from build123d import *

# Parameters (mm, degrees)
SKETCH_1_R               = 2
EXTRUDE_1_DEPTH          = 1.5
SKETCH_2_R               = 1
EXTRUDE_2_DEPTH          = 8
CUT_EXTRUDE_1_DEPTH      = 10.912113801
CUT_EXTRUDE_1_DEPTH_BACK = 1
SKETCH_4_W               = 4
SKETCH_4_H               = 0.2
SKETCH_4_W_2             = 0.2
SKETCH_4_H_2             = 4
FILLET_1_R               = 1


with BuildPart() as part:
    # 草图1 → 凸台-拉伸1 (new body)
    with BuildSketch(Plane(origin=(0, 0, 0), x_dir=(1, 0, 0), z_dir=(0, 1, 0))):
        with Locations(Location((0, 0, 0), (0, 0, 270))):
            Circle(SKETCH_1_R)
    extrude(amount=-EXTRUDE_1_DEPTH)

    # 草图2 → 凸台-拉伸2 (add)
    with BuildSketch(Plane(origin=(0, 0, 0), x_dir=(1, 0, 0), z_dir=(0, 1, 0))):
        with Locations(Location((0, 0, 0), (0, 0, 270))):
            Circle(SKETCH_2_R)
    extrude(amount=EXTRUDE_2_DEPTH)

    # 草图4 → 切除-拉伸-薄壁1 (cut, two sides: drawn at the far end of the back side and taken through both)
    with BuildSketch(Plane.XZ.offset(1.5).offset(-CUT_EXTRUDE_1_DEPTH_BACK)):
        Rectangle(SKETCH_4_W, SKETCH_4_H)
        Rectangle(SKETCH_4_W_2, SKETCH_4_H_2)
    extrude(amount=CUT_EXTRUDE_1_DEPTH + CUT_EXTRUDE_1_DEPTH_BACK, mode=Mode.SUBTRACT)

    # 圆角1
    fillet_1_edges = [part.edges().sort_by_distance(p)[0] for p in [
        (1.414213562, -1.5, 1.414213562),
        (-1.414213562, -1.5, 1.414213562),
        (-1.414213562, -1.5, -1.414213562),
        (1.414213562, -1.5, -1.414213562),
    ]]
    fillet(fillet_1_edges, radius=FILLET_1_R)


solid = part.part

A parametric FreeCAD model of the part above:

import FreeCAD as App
import Part
import Sketcher


def edges_at(feature, points):
    """Names of the edges that pass closest to the given points."""
    edges = feature.Shape.Edges
    near = lambda p: min(range(len(edges)), key=lambda i: edges[i].distToShape(Part.Vertex(*p))[0])
    return sorted({f"Edge{near(p) + 1}" for p in points})

doc = App.newDocument("Part")
body = doc.addObject("PartDesign::Body", "Body")

sketch1 = body.newObject("Sketcher::SketchObject", "Sketch")
sketch1.AttachmentSupport = (doc.getObject("XZ_Plane"), [""])
sketch1.MapMode = "FlatFace"
sketch1.addGeometry(Part.Circle(App.Vector(0, 0, 0), App.Vector(0, 0, 1), 2), False)
sketch1.addConstraint(Sketcher.Constraint("Coincident", 0, 3, -1, 1))
sketch1.addConstraint(Sketcher.Constraint("Diameter", 0, 4.0))
pad1 = body.newObject("PartDesign::Pad", "Pad")
pad1.Profile = sketch1
pad1.Length = 1.5

sketch2 = body.newObject("Sketcher::SketchObject", "Sketch001")
sketch2.AttachmentSupport = (doc.getObject("XZ_Plane"), [""])
sketch2.MapMode = "FlatFace"
sketch2.addGeometry(Part.Circle(App.Vector(0, 0, 0), App.Vector(0, 0, 1), 1), False)
sketch2.addConstraint(Sketcher.Constraint("Coincident", 0, 3, -1, 1))
sketch2.addConstraint(Sketcher.Constraint("Diameter", 0, 2.0))
pad2 = body.newObject("PartDesign::Pad", "Pad001")
pad2.Profile = sketch2
pad2.Length = 8
pad2.Reversed = True

sketch3 = body.newObject("Sketcher::SketchObject", "Sketch002")
sketch3.AttachmentSupport = (doc.getObject("XZ_Plane"), [""])
sketch3.MapMode = "FlatFace"
sketch3.AttachmentOffset = App.Placement(App.Vector(0, 0, 1.5), App.Rotation())
sketch3.addGeometry(Part.LineSegment(App.Vector(-2, 0.1, 0), App.Vector(-2, -0.1, 0)), False)
sketch3.addGeometry(Part.LineSegment(App.Vector(-2, -0.1, 0), App.Vector(-0.1, -0.1, 0)), False)
sketch3.addGeometry(Part.LineSegment(App.Vector(-0.1, -0.1, 0), App.Vector(-0.1, -2, 0)), False)
sketch3.addGeometry(Part.LineSegment(App.Vector(-0.1, -2, 0), App.Vector(0.1, -2, 0)), False)
sketch3.addGeometry(Part.LineSegment(App.Vector(0.1, -2, 0), App.Vector(0.1, -0.1, 0)), False)
sketch3.addGeometry(Part.LineSegment(App.Vector(0.1, -0.1, 0), App.Vector(2, -0.1, 0)), False)
sketch3.addGeometry(Part.LineSegment(App.Vector(2, -0.1, 0), App.Vector(2, 0.1, 0)), False)
sketch3.addGeometry(Part.LineSegment(App.Vector(2, 0.1, 0), App.Vector(0.1, 0.1, 0)), False)
sketch3.addGeometry(Part.LineSegment(App.Vector(0.1, 0.1, 0), App.Vector(0.1, 2, 0)), False)
sketch3.addGeometry(Part.LineSegment(App.Vector(0.1, 2, 0), App.Vector(-0.1, 2, 0)), False)
sketch3.addGeometry(Part.LineSegment(App.Vector(-0.1, 2, 0), App.Vector(-0.1, 0.1, 0)), False)
sketch3.addGeometry(Part.LineSegment(App.Vector(-0.1, 0.1, 0), App.Vector(-2, 0.1, 0)), False)
sketch3.addConstraint(Sketcher.Constraint("Coincident", 0, 2, 1, 1))
sketch3.addConstraint(Sketcher.Constraint("Coincident", 1, 2, 2, 1))
sketch3.addConstraint(Sketcher.Constraint("Coincident", 2, 2, 3, 1))
sketch3.addConstraint(Sketcher.Constraint("Coincident", 3, 2, 4, 1))
sketch3.addConstraint(Sketcher.Constraint("Coincident", 4, 2, 5, 1))
sketch3.addConstraint(Sketcher.Constraint("Coincident", 5, 2, 6, 1))
sketch3.addConstraint(Sketcher.Constraint("Coincident", 6, 2, 7, 1))
sketch3.addConstraint(Sketcher.Constraint("Coincident", 7, 2, 8, 1))
sketch3.addConstraint(Sketcher.Constraint("Coincident", 8, 2, 9, 1))
sketch3.addConstraint(Sketcher.Constraint("Coincident", 9, 2, 10, 1))
sketch3.addConstraint(Sketcher.Constraint("Coincident", 10, 2, 11, 1))
sketch3.addConstraint(Sketcher.Constraint("Coincident", 11, 2, 0, 1))
sketch3.addConstraint(Sketcher.Constraint("Vertical", 0))
sketch3.addConstraint(Sketcher.Constraint("Horizontal", 1))
sketch3.addConstraint(Sketcher.Constraint("Vertical", 2))
sketch3.addConstraint(Sketcher.Constraint("Horizontal", 3))
sketch3.addConstraint(Sketcher.Constraint("Vertical", 4))
sketch3.addConstraint(Sketcher.Constraint("Horizontal", 5))
sketch3.addConstraint(Sketcher.Constraint("Vertical", 6))
sketch3.addConstraint(Sketcher.Constraint("Horizontal", 7))
sketch3.addConstraint(Sketcher.Constraint("Vertical", 8))
sketch3.addConstraint(Sketcher.Constraint("Horizontal", 9))
sketch3.addConstraint(Sketcher.Constraint("Vertical", 10))
sketch3.addConstraint(Sketcher.Constraint("Horizontal", 11))
sketch3.addConstraint(Sketcher.Constraint("Symmetric", 0, 2, 6, 2, -1, 1))
sketch3.addConstraint(Sketcher.Constraint("Symmetric", 2, 2, 8, 2, -1, 1))
sketch3.addConstraint(Sketcher.Constraint("Symmetric", 4, 2, 10, 2, -1, 1))
sketch3.addConstraint(Sketcher.Constraint("Symmetric", 1, 2, 4, 2, -2))
sketch3.addConstraint(Sketcher.Constraint("Equal", 9, 0))
sketch3.addConstraint(Sketcher.Constraint("Equal", 11, 2))
sketch3.addConstraint(Sketcher.Constraint("DistanceX", 1, 1, 1, 2, 1.9))
sketch3.addConstraint(Sketcher.Constraint("DistanceX", 3, 1, 3, 2, 0.2))
pocket1 = body.newObject("PartDesign::Pocket", "Pocket")
pocket1.Profile = sketch3
pocket1.Type = "TwoLengths"
pocket1.Length = 10.912114
pocket1.Length2 = 1
pocket1.Reversed = True
doc.recompute()

fillet = body.newObject("PartDesign::Fillet", "Fillet")
fillet.Base = (pocket1, edges_at(pocket1, [
    (1.414, -1.5, 1.414),
    (-1.414, -1.5, 1.414),
    (-1.414, -1.5, -1.414),
    (1.414, -1.5, -1.414),
]))
fillet.Radius = 1

doc.recompute()
